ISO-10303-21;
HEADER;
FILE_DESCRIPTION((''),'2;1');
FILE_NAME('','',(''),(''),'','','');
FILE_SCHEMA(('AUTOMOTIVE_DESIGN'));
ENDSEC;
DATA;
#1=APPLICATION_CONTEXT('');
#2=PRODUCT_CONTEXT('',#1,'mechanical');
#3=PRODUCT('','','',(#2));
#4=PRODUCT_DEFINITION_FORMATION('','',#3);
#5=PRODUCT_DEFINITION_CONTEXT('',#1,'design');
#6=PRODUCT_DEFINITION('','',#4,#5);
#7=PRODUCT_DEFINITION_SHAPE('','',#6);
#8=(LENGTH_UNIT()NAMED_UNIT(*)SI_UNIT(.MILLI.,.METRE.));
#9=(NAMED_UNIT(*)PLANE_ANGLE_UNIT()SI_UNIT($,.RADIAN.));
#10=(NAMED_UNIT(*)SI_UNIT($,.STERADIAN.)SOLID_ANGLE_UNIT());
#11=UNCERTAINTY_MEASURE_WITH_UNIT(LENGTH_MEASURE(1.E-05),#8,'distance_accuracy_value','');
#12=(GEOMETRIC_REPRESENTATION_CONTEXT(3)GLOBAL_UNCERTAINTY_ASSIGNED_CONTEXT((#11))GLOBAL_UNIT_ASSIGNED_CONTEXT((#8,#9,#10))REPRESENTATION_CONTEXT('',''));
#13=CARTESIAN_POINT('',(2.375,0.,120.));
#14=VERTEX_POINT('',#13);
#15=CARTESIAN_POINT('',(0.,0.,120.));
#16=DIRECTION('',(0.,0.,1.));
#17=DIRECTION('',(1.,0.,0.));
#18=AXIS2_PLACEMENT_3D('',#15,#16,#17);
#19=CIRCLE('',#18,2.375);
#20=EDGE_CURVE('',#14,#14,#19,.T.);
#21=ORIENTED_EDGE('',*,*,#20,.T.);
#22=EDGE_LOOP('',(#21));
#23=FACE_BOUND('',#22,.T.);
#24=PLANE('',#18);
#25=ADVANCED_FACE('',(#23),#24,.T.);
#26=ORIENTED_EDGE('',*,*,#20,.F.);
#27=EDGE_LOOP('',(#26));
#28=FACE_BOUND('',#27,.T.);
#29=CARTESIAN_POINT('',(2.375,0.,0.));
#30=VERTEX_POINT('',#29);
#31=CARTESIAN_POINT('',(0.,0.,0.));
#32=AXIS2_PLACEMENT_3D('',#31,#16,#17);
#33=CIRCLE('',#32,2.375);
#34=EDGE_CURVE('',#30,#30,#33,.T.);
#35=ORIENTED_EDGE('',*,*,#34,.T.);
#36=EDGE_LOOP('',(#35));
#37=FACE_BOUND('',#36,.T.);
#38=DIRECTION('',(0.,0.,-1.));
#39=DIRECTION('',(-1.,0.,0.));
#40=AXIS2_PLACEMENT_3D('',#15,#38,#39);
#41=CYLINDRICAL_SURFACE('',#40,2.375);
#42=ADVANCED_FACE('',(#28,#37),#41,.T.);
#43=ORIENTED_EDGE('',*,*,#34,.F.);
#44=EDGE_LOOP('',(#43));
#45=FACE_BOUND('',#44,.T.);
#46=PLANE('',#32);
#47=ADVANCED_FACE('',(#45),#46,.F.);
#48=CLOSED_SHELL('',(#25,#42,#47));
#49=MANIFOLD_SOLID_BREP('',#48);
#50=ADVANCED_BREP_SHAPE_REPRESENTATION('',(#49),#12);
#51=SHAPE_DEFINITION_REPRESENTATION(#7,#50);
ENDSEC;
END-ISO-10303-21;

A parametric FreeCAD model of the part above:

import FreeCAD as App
import Part
import Sketcher

doc = App.newDocument("Part")
params = doc.addObject("Spreadsheet::Sheet", "Params")
for row, (alias, value) in enumerate([
    ("sketch1_diameter", "4.75 mm"),
    ("pad1_length", "120 mm"),
], start=1):
    params.set(f"A{row}", alias)
    params.set(f"B{row}", "=" + value)
    params.setAlias(f"B{row}", alias)

body = doc.addObject("PartDesign::Body", "Body")

sketch1 = body.newObject("Sketcher::SketchObject", "Sketch")
sketch1.AttachmentSupport = (doc.getObject("XY_Plane"), [""])
sketch1.MapMode = "FlatFace"
sketch1.addGeometry(Part.Circle(App.Vector(0, 0, 0), App.Vector(0, 0, 1), 2.4), False)
sketch1.addConstraint(Sketcher.Constraint("Coincident", 0, 3, -1, 1))
sketch1.addConstraint(Sketcher.Constraint("Diameter", 0, 4.75))
sketch1.setExpression("Constraints[1]", "Params.sketch1_diameter")
pad1 = body.newObject("PartDesign::Pad", "Pad")
pad1.Profile = sketch1
pad1.setExpression("Length", "Params.pad1_length")

doc.recompute()
